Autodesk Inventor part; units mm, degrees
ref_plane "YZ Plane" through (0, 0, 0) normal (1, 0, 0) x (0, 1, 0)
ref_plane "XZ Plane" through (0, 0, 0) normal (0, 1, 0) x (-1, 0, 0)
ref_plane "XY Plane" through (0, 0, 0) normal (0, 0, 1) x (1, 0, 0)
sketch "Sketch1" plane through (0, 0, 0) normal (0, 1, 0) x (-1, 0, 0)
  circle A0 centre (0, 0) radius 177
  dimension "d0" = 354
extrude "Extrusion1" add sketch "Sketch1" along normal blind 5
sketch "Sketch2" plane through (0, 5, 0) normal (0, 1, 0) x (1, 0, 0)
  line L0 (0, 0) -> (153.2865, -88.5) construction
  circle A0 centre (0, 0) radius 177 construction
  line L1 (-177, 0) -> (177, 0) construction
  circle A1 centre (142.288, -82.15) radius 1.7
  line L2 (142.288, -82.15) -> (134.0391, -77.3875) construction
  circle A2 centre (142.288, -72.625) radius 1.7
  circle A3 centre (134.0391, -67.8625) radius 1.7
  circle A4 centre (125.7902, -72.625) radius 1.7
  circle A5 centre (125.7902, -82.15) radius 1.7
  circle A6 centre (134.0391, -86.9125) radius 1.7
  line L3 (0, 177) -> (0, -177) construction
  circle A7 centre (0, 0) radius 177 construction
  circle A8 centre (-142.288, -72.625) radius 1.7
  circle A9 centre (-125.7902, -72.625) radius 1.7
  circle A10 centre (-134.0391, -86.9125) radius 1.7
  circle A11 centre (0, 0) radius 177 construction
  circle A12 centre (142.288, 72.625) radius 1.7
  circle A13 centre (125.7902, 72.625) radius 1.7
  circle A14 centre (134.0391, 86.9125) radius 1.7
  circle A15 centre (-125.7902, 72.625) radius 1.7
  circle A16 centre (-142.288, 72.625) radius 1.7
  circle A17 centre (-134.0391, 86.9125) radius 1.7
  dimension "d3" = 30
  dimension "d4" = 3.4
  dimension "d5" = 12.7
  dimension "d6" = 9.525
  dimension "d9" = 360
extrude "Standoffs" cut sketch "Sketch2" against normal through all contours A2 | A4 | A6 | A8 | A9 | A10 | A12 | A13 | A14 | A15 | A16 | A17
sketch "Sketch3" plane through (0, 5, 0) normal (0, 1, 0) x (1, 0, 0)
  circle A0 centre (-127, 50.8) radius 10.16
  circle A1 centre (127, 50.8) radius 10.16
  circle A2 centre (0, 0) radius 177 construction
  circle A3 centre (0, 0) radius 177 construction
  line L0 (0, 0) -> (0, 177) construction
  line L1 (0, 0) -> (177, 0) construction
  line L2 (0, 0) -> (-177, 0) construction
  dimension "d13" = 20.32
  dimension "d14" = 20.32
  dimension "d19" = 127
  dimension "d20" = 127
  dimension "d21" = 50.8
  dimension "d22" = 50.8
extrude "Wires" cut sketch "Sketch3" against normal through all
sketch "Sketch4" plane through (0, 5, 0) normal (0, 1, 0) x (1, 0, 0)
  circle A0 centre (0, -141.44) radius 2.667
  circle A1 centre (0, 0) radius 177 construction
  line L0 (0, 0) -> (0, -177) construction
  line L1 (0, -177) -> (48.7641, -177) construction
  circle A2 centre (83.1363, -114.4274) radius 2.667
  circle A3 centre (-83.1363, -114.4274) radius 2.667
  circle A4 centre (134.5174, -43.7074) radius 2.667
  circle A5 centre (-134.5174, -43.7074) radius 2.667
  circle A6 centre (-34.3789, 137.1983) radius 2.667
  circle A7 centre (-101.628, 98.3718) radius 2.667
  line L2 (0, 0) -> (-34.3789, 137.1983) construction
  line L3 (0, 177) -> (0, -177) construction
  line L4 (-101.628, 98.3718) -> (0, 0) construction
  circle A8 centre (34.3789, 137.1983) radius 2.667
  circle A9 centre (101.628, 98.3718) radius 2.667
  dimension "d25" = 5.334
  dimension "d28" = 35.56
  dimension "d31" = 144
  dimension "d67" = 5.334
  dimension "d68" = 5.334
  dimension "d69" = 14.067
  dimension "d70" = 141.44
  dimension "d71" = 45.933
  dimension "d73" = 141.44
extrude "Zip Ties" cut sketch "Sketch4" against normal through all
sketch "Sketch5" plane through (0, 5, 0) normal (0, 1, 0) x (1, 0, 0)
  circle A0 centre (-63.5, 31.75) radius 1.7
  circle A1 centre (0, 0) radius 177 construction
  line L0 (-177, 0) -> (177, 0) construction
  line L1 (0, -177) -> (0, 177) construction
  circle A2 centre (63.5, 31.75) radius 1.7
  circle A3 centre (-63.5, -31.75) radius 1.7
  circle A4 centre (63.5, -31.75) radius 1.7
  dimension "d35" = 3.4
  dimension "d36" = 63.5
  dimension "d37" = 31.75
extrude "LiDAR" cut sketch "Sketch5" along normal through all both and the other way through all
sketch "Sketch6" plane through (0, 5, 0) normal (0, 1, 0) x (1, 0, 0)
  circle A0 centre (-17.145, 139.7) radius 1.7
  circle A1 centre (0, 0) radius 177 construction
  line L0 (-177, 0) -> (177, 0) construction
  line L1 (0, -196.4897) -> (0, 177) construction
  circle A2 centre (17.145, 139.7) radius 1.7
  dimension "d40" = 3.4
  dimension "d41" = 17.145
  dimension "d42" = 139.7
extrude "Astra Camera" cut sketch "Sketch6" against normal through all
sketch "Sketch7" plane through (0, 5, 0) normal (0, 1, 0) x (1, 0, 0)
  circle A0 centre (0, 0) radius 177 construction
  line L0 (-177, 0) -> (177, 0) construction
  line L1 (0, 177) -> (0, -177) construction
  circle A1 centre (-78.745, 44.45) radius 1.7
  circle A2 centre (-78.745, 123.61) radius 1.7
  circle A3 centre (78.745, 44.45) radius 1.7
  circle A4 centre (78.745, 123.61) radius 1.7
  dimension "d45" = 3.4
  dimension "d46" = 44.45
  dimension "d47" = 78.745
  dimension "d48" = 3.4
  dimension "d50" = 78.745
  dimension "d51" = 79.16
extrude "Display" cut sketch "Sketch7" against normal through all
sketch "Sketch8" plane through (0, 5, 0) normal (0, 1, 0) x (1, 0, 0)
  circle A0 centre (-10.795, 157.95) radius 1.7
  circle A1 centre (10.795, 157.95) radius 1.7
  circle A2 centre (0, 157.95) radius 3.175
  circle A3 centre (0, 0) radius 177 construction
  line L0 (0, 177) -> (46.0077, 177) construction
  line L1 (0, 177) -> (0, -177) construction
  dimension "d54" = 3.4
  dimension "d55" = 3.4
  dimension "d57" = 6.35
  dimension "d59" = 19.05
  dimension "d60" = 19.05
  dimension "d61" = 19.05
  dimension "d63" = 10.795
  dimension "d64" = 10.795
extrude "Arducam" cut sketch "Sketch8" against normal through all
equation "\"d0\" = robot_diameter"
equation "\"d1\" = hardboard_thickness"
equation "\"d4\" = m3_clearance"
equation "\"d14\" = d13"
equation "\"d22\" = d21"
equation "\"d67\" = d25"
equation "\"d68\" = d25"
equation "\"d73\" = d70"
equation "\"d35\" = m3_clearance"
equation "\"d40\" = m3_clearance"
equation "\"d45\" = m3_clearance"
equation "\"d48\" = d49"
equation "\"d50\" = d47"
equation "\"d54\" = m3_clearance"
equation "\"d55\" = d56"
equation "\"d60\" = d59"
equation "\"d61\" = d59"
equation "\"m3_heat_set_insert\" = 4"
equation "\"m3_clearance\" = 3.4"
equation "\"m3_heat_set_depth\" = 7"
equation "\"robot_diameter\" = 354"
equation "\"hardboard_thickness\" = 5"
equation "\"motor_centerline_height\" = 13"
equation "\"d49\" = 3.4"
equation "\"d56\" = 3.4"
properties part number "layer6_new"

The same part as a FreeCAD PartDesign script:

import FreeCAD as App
import Part
import Sketcher
Q = App.Units.Quantity

doc = App.newDocument("Part")
body = doc.addObject("PartDesign::Body", "Body")

# Sketch on XZ plane
sketch1 = doc.addObject("Sketcher::SketchObject", "Sketch")
body.addObject(sketch1)
sketch1.AttachmentSupport = (doc.XZ_Plane, [""])
sketch1.MapMode = "FlatFace"
sketch1.addGeometry(Part.Circle(App.Vector(0, 0, 0), App.Vector(0, 0, 1), 177), False)
sketch1.addConstraint([
    Sketcher.Constraint("Coincident", 0, 3, -1, 1),
    Sketcher.Constraint("Diameter", 0, Q("13.937 in")),
])
pad1 = doc.addObject("PartDesign::Pad", "Pad")
body.addObject(pad1)
pad1.Profile = sketch1
pad1.Length = 5
pad1.Reversed = True

# Sketch on XZ plane
sketch2 = doc.addObject("Sketcher::SketchObject", "Sketch001")
body.addObject(sketch2)
sketch2.AttachmentSupport = (doc.XZ_Plane, [""])
sketch2.MapMode = "FlatFace"
sketch2.AttachmentOffset = App.Placement(App.Vector(0, 0, -5), App.Rotation())
sketch2.addGeometry([
    Part.Circle(App.Vector(142.3, 72.6, 0), App.Vector(0, 0, 1), 1.7),  # 0
    Part.Circle(App.Vector(125.8, 72.6, 0), App.Vector(0, 0, 1), 1.7),  # 1
    Part.Circle(App.Vector(134, 86.9, 0), App.Vector(0, 0, 1), 1.7),  # 2
    Part.Circle(App.Vector(-142.3, 72.6, 0), App.Vector(0, 0, 1), 1.7),  # 3
    Part.Circle(App.Vector(-125.8, 72.6, 0), App.Vector(0, 0, 1), 1.7),  # 4
    Part.Circle(App.Vector(-134, 86.9, 0), App.Vector(0, 0, 1), 1.7),  # 5
    Part.Circle(App.Vector(142.3, -72.6, 0), App.Vector(0, 0, 1), 1.7),  # 6
    Part.Circle(App.Vector(125.8, -72.6, 0), App.Vector(0, 0, 1), 1.7),  # 7
    Part.Circle(App.Vector(134, -86.9, 0), App.Vector(0, 0, 1), 1.7),  # 8
    Part.Circle(App.Vector(-125.8, -72.6, 0), App.Vector(0, 0, 1), 1.7),  # 9
    Part.Circle(App.Vector(-142.3, -72.6, 0), App.Vector(0, 0, 1), 1.7),  # 10
    Part.Circle(App.Vector(-134, -86.9, 0), App.Vector(0, 0, 1), 1.7),  # 11
], False)
sketch2.addConstraint([
    Sketcher.Constraint("Equal", 0, 1),
    Sketcher.Constraint("Equal", 1, 2),
    Sketcher.Constraint("Equal", 2, 3),
    Sketcher.Constraint("Equal", 3, 4),
    Sketcher.Constraint("Equal", 4, 5),
    Sketcher.Constraint("Equal", 5, 6),
    Sketcher.Constraint("Equal", 6, 7),
    Sketcher.Constraint("Equal", 7, 8),
    Sketcher.Constraint("Equal", 8, 9),
    Sketcher.Constraint("Equal", 9, 10),
    Sketcher.Constraint("Equal", 10, 11),
    Sketcher.Constraint("Symmetric", 3, 3, 6, 3, -1, 1),
    Sketcher.Constraint("Symmetric", 4, 3, 7, 3, -1, 1),
    Sketcher.Constraint("Symmetric", 5, 3, 8, 3, -1, 1),
    Sketcher.Constraint("Symmetric", 1, 3, 9, 3, -1, 1),
    Sketcher.Constraint("Symmetric", 0, 3, 10, 3, -1, 1),
    Sketcher.Constraint("Symmetric", 2, 3, 11, 3, -1, 1),
    Sketcher.Constraint("Symmetric", 0, 3, 3, 3, -2),
    Sketcher.Constraint("Symmetric", 1, 3, 4, 3, -2),
    Sketcher.Constraint("Symmetric", 2, 3, 5, 3, -2),
    Sketcher.Constraint("Horizontal", 0, 3, 1, 3),
    Sketcher.Constraint("Diameter", 0, Q("3.4 mm")),
    Sketcher.Constraint("DistanceY", 1, 3, 2, 3, Q("0.5625 in")),
    Sketcher.Constraint("DistanceY", 6, 3, 2, 3, Q("6.281 in")),
    Sketcher.Constraint("DistanceX", -1, 1, 0, 3, Q("5.6019 in")),
    Sketcher.Constraint("DistanceX", 4, 3, 2, 3, Q("10.2295 in")),
    Sketcher.Constraint("DistanceX", -1, 1, 1, 3, Q("125.7902 mm")),
])
pocket1 = doc.addObject("PartDesign::Pocket", "Pocket")
body.addObject(pocket1)
pocket1.Profile = sketch2
pocket1.Type = "ThroughAll"
pocket1.Reversed = True

# Sketch on XZ plane
sketch3 = doc.addObject("Sketcher::SketchObject", "Sketch002")
body.addObject(sketch3)
sketch3.AttachmentSupport = (doc.XZ_Plane, [""])
sketch3.MapMode = "FlatFace"
sketch3.AttachmentOffset = App.Placement(App.Vector(0, 0, -5), App.Rotation())
sketch3.addGeometry([
    Part.Circle(App.Vector(-127, -51, 0), App.Vector(0, 0, 1), 10),
    Part.Circle(App.Vector(127, -51, 0), App.Vector(0, 0, 1), 10),
], False)
sketch3.addConstraint([
    Sketcher.Constraint("Equal", 0, 1),
    Sketcher.Constraint("Symmetric", 0, 3, 1, 3, -2),
    Sketcher.Constraint("Diameter", 0, Q("0.8 in")),
    Sketcher.Constraint("DistanceX", 0, 3, -1, 1, Q("5 in")),
    Sketcher.Constraint("DistanceY", 0, 3, -1, 1, Q("2 in")),
])
pocket2 = doc.addObject("PartDesign::Pocket", "Pocket001")
body.addObject(pocket2)
pocket2.Profile = sketch3
pocket2.Type = "ThroughAll"
pocket2.Reversed = True

# Sketch on XZ plane
sketch4 = doc.addObject("Sketcher::SketchObject", "Sketch003")
body.addObject(sketch4)
sketch4.AttachmentSupport = (doc.XZ_Plane, [""])
sketch4.MapMode = "FlatFace"
sketch4.AttachmentOffset = App.Placement(App.Vector(0, 0, -5), App.Rotation())
sketch4.addGeometry([
    Part.Circle(App.Vector(0, 141.4, 0), App.Vector(0, 0, 1), 2.7),  # 0
    Part.Circle(App.Vector(83.1, 114.4, 0), App.Vector(0, 0, 1), 2.7),  # 1
    Part.Circle(App.Vector(-83.1, 114.4, 0), App.Vector(0, 0, 1), 2.7),  # 2
    Part.Circle(App.Vector(134.5, 43.7, 0), App.Vector(0, 0, 1), 2.7),  # 3
    Part.Circle(App.Vector(-134.5, 43.7, 0), App.Vector(0, 0, 1), 2.7),  # 4
    Part.Circle(App.Vector(-34.4, -137.2, 0), App.Vector(0, 0, 1), 2.7),  # 5
    Part.Circle(App.Vector(-101.6, -98.4, 0), App.Vector(0, 0, 1), 2.7),  # 6
    Part.Circle(App.Vector(34.4, -137.2, 0), App.Vector(0, 0, 1), 2.7),  # 7
    Part.Circle(App.Vector(101.6, -98.4, 0), App.Vector(0, 0, 1), 2.7),  # 8
], False)
sketch4.addConstraint([
    Sketcher.Constraint("Equal", 0, 1),
    Sketcher.Constraint("Equal", 1, 2),
    Sketcher.Constraint("Equal", 2, 3),
    Sketcher.Constraint("Equal", 3, 4),
    Sketcher.Constraint("Equal", 4, 5),
    Sketcher.Constraint("Equal", 5, 6),
    Sketcher.Constraint("Equal", 6, 7),
    Sketcher.Constraint("Equal", 7, 8),
    Sketcher.Constraint("Symmetric", 1, 3, 2, 3, -2),
    Sketcher.Constraint("Symmetric", 3, 3, 4, 3, -2),
    Sketcher.Constraint("Symmetric", 5, 3, 7, 3, -2),
    Sketcher.Constraint("Symmetric", 6, 3, 8, 3, -2),
    Sketcher.Constraint("PointOnObject", 0, 3, -2),
    Sketcher.Constraint("Diameter", 0, Q("0.21 in")),
    Sketcher.Constraint("DistanceY", -1, 1, 0, 3, Q("5.5685 in")),
    Sketcher.Constraint("DistanceY", 5, 3, 0, 3, Q("10.97 in")),
    Sketcher.Constraint("DistanceX", 5, 3, 7, 3, Q("2.707 in")),
    Sketcher.Constraint("DistanceX", 6, 3, -1, 1, Q("4.0011 in")),
    Sketcher.Constraint("DistanceY", 6, 3, -1, 1, Q("3.8729 in")),
    Sketcher.Constraint("DistanceY", 1, 3, 0, 3, Q("1.0635 in")),
    Sketcher.Constraint("DistanceX", -1, 1, 1, 3, Q("83.1363 mm")),
    Sketcher.Constraint("DistanceX", -1, 1, 3, 3, Q("134.5174 mm")),
    Sketcher.Constraint("DistanceY", -1, 1, 3, 3, Q("43.7074 mm")),
])
pocket3 = doc.addObject("PartDesign::Pocket", "Pocket002")
body.addObject(pocket3)
pocket3.Profile = sketch4
pocket3.Type = "ThroughAll"
pocket3.Reversed = True

# Sketch on XZ plane
sketch5 = doc.addObject("Sketcher::SketchObject", "Sketch004")
body.addObject(sketch5)
sketch5.AttachmentSupport = (doc.XZ_Plane, [""])
sketch5.MapMode = "FlatFace"
sketch5.AttachmentOffset = App.Placement(App.Vector(0, 0, -5), App.Rotation())
sketch5.addGeometry([
    Part.Circle(App.Vector(-63.5, -31.8, 0), App.Vector(0, 0, 1), 1.7),
    Part.Circle(App.Vector(63.5, -31.8, 0), App.Vector(0, 0, 1), 1.7),
    Part.Circle(App.Vector(-63.5, 31.8, 0), App.Vector(0, 0, 1), 1.7),
    Part.Circle(App.Vector(63.5, 31.8, 0), App.Vector(0, 0, 1), 1.7),
], False)
sketch5.addConstraint([
    Sketcher.Constraint("Equal", 0, 1),
    Sketcher.Constraint("Equal", 1, 2),
    Sketcher.Constraint("Equal", 2, 3),
    Sketcher.Constraint("Symmetric", 1, 3, 2, 3, -1, 1),
    Sketcher.Constraint("Symmetric", 0, 3, 3, 3, -1, 1),
    Sketcher.Constraint("Symmetric", 0, 3, 1, 3, -2),
    Sketcher.Constraint("DistanceX", 0, 3, -1, 1, Q("2.5 in")),
    Sketcher.Constraint("DistanceY", 0, 3, 2, 3, Q("2.5 in")),
    Sketcher.Constraint("Diameter", 0, Q("3.4 mm")),
])
pocket4 = doc.addObject("PartDesign::Pocket", "Pocket003")
body.addObject(pocket4)
pocket4.Profile = sketch5
pocket4.Type = "ThroughAll"
pocket4.Midplane = True

# Sketch on XZ plane
sketch6 = doc.addObject("Sketcher::SketchObject", "Sketch005")
body.addObject(sketch6)
sketch6.AttachmentSupport = (doc.XZ_Plane, [""])
sketch6.MapMode = "FlatFace"
sketch6.AttachmentOffset = App.Placement(App.Vector(0, 0, -5), App.Rotation())
sketch6.addGeometry([
    Part.Circle(App.Vector(-17.1, -139.7, 0), App.Vector(0, 0, 1), 1.7),
    Part.Circle(App.Vector(17.1, -139.7, 0), App.Vector(0, 0, 1), 1.7),
], False)
sketch6.addConstraint([
    Sketcher.Constraint("Equal", 0, 1),
    Sketcher.Constraint("Symmetric", 0, 3, 1, 3, -2),
    Sketcher.Constraint("DistanceY", 0, 3, -1, 1, Q("5.5 in")),
    Sketcher.Constraint("Diameter", 0, Q("3.4 mm")),
    Sketcher.Constraint("DistanceX", 0, 3, -1, 1, Q("0.675 in")),
])
pocket5 = doc.addObject("PartDesign::Pocket", "Pocket004")
body.addObject(pocket5)
pocket5.Profile = sketch6
pocket5.Type = "ThroughAll"
pocket5.Reversed = True

# Sketch on XZ plane
sketch7 = doc.addObject("Sketcher::SketchObject", "Sketch006")
body.addObject(sketch7)
sketch7.AttachmentSupport = (doc.XZ_Plane, [""])
sketch7.MapMode = "FlatFace"
sketch7.AttachmentOffset = App.Placement(App.Vector(0, 0, -5), App.Rotation())
sketch7.addGeometry([
    Part.Circle(App.Vector(-78.7, -44.5, 0), App.Vector(0, 0, 1), 1.7),
    Part.Circle(App.Vector(-78.7, -123.6, 0), App.Vector(0, 0, 1), 1.7),
    Part.Circle(App.Vector(78.7, -44.5, 0), App.Vector(0, 0, 1), 1.7),
    Part.Circle(App.Vector(78.7, -123.6, 0), App.Vector(0, 0, 1), 1.7),
], False)
sketch7.addConstraint([
    Sketcher.Constraint("Equal", 0, 1),
    Sketcher.Constraint("Equal", 1, 2),
    Sketcher.Constraint("Equal", 2, 3),
    Sketcher.Constraint("Symmetric", 0, 3, 2, 3, -2),
    Sketcher.Constraint("Symmetric", 1, 3, 3, 3, -2),
    Sketcher.Constraint("Vertical", 0, 3, 1, 3),
    Sketcher.Constraint("Diameter", 0, Q("3.4 mm")),
    Sketcher.Constraint("DistanceY", 0, 3, -1, 1, Q("1.75 in")),
    Sketcher.Constraint("DistanceX", 0, 3, -1, 1, Q("3.1002 in")),
    Sketcher.Constraint("DistanceY", 1, 3, 0, 3, Q("79.16 mm")),
])
pocket6 = doc.addObject("PartDesign::Pocket", "Pocket005")
body.addObject(pocket6)
pocket6.Profile = sketch7
pocket6.Type = "ThroughAll"
pocket6.Reversed = True

# Sketch on XZ plane
sketch8 = doc.addObject("Sketcher::SketchObject", "Sketch007")
body.addObject(sketch8)
sketch8.AttachmentSupport = (doc.XZ_Plane, [""])
sketch8.MapMode = "FlatFace"
sketch8.AttachmentOffset = App.Placement(App.Vector(0, 0, -5), App.Rotation())
sketch8.addGeometry([
    Part.Circle(App.Vector(-10.8, -157.9, 0), App.Vector(0, 0, 1), 1.7),
    Part.Circle(App.Vector(10.8, -157.9, 0), App.Vector(0, 0, 1), 1.7),
    Part.Circle(App.Vector(0, -157.9, 0), App.Vector(0, 0, 1), 3.2),
], False)
sketch8.addConstraint([
    Sketcher.Constraint("Equal", 0, 1),
    Sketcher.Constraint("Symmetric", 0, 3, 1, 3, -2),
    Sketcher.Constraint("PointOnObject", 2, 3, -2),
    Sketcher.Constraint("Horizontal", 1, 3, 2, 3),
    Sketcher.Constraint("Diameter", 2, Q("0.25 in")),
    Sketcher.Constraint("Diameter", 0, Q("3.4 mm")),
    Sketcher.Constraint("DistanceX", 0, 3, -1, 1, Q("0.425 in")),
    Sketcher.Constraint("DistanceY", 0, 3, -1, 1, Q("6.2185 in")),
])
pocket7 = doc.addObject("PartDesign::Pocket", "Pocket006")
body.addObject(pocket7)
pocket7.Profile = sketch8
pocket7.Type = "ThroughAll"
pocket7.Reversed = True

doc.recompute()
